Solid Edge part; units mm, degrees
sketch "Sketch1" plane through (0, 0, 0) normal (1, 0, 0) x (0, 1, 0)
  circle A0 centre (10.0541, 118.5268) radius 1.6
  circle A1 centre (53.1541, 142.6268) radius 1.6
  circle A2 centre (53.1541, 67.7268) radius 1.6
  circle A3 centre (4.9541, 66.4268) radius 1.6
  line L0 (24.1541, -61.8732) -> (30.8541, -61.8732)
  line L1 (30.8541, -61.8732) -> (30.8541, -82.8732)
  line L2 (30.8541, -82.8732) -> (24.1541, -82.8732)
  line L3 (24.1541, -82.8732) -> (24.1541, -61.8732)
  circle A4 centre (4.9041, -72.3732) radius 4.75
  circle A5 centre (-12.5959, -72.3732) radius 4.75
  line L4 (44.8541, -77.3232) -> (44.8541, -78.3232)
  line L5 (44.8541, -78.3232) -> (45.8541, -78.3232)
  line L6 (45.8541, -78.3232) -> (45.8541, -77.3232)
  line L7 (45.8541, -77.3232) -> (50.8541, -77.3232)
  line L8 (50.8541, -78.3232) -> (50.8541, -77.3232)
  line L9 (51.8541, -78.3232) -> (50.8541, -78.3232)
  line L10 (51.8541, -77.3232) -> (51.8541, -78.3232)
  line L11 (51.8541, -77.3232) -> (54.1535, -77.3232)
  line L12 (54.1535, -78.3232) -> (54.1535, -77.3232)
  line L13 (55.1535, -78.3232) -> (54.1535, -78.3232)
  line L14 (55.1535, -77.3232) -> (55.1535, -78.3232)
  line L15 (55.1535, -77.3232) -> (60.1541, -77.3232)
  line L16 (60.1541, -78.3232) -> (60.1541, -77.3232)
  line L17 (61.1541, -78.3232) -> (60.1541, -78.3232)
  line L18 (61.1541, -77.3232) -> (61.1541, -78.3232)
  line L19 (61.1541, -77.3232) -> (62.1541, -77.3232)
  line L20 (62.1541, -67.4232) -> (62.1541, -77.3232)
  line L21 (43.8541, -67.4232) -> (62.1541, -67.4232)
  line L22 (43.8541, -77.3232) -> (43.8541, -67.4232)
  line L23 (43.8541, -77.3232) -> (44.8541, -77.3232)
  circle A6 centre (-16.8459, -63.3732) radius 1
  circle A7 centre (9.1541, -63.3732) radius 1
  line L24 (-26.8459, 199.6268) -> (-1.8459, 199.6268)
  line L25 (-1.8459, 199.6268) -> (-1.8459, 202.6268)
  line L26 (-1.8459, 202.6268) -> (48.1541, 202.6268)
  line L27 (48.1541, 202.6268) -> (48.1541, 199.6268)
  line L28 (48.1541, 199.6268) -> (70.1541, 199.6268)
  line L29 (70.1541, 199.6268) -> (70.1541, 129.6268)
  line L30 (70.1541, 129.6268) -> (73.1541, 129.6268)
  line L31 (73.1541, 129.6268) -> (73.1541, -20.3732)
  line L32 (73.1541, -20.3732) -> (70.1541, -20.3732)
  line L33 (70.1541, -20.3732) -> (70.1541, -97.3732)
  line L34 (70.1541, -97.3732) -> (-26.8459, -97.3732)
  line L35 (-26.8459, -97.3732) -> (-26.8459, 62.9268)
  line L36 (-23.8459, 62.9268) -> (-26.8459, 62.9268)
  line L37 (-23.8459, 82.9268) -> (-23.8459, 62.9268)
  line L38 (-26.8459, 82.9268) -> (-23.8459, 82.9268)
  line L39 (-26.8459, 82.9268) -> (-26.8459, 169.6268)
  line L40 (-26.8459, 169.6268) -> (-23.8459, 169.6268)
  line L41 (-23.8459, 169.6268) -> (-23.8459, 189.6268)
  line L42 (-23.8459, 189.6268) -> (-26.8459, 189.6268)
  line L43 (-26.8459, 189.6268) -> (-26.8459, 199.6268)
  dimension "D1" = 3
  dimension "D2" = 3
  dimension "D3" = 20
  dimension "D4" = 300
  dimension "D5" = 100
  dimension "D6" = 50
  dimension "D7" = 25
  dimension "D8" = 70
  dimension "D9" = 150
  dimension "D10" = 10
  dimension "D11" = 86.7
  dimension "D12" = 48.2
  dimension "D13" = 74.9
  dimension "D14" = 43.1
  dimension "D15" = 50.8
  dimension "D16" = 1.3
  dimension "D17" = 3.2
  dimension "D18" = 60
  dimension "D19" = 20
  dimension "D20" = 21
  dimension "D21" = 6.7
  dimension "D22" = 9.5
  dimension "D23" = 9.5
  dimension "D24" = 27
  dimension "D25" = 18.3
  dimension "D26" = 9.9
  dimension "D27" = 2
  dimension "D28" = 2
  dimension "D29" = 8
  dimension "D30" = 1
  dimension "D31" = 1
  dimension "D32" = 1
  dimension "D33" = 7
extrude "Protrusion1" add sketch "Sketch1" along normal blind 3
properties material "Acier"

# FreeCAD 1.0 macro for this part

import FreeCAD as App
import Part
import Sketcher

V = App.Vector


def add_polygon(sketch, points):
    """Adds a closed chain of lines whose ends are joined by coincident constraints."""
    first, n = sketch.GeometryCount, len(points)
    for a, b in zip(points, points[1:] + points[:1]):
        sketch.addGeometry(Part.LineSegment(App.Vector(*a, 0), App.Vector(*b, 0)), False)
    for i in range(n):
        sketch.addConstraint(Sketcher.Constraint("Coincident", first + i, 2, first + (i + 1) % n, 1))

doc = App.newDocument("Part")
body = doc.addObject("PartDesign::Body", "Body")

# Sketch on YZ plane
sketch1 = body.newObject("Sketcher::SketchObject", "Sketch")
sketch1.AttachmentSupport = (doc.getObject("YZ_Plane"), [""])
sketch1.MapMode = "FlatFace"
add_polygon(sketch1, [(-1.8, 199.6), (-26.8, 199.6), (-26.8, 189.6), (-23.8, 189.6), (-23.8, 169.6), (-26.8, 169.6), (-26.8, 82.9), (-23.8, 82.9), (-23.8, 62.9), (-26.8, 62.9), (-26.8, -97.4), (70.2, -97.4), (70.2, -20.4), (73.2, -20.4), (73.2, 129.6), (70.2, 129.6), (70.2, 199.6), (48.2, 199.6), (48.2, 202.6), (-1.8, 202.6)])  # lines 0-19
sketch1.addGeometry(Part.Circle(V(-16.8, -63.4, 0), V(0, 0, 1), 1), False)  # 20
sketch1.addGeometry(Part.Circle(V(-12.6, -72.4, 0), V(0, 0, 1), 4.8), False)  # 21
sketch1.addGeometry(Part.Circle(V(4.9, -72.4, 0), V(0, 0, 1), 4.8), False)  # 22
sketch1.addGeometry(Part.Circle(V(9.2, -63.4, 0), V(0, 0, 1), 1), False)  # 23
add_polygon(sketch1, [(24.2, -82.9), (24.2, -61.9), (30.9, -61.9), (30.9, -82.9)])  # lines 24-27
add_polygon(sketch1, [(44.9, -78.3), (44.9, -77.3), (43.9, -77.3), (43.9, -67.4), (62.2, -67.4), (62.2, -77.3), (61.2, -77.3), (61.2, -78.3), (60.2, -78.3), (60.2, -77.3), (55.2, -77.3), (55.2, -78.3), (54.2, -78.3), (54.2, -77.3), (51.9, -77.3), (51.9, -78.3), (50.9, -78.3), (50.9, -77.3), (45.9, -77.3), (45.9, -78.3)])  # lines 28-47
sketch1.addGeometry(Part.Circle(V(5, 66.4, 0), V(0, 0, 1), 1.6), False)  # 48
sketch1.addGeometry(Part.Circle(V(10.1, 118.5, 0), V(0, 0, 1), 1.6), False)  # 49
sketch1.addGeometry(Part.Circle(V(53.2, 67.7, 0), V(0, 0, 1), 1.6), False)  # 50
sketch1.addGeometry(Part.Circle(V(53.2, 142.6, 0), V(0, 0, 1), 1.6), False)  # 51
sketch1.addConstraint([
    Sketcher.Constraint("Horizontal", 0),
    Sketcher.Constraint("Vertical", 1),
    Sketcher.Constraint("Horizontal", 2),
    Sketcher.Constraint("Vertical", 3),
    Sketcher.Constraint("Horizontal", 4),
    Sketcher.Constraint("Vertical", 5),
    Sketcher.Constraint("Horizontal", 6),
    Sketcher.Constraint("Vertical", 7),
    Sketcher.Constraint("Horizontal", 8),
    Sketcher.Constraint("Vertical", 9),
    Sketcher.Constraint("Horizontal", 10),
    Sketcher.Constraint("Vertical", 11),
    Sketcher.Constraint("Horizontal", 12),
    Sketcher.Constraint("Vertical", 13),
    Sketcher.Constraint("Horizontal", 14),
    Sketcher.Constraint("Vertical", 15),
    Sketcher.Constraint("Horizontal", 16),
    Sketcher.Constraint("Vertical", 17),
    Sketcher.Constraint("Horizontal", 18),
    Sketcher.Constraint("Vertical", 19),
    Sketcher.Constraint("Vertical", 24),
    Sketcher.Constraint("Horizontal", 25),
    Sketcher.Constraint("Vertical", 26),
    Sketcher.Constraint("Horizontal", 27),
    Sketcher.Constraint("Vertical", 28),
    Sketcher.Constraint("Horizontal", 29),
    Sketcher.Constraint("Vertical", 30),
    Sketcher.Constraint("Horizontal", 31),
    Sketcher.Constraint("Vertical", 32),
    Sketcher.Constraint("Horizontal", 33),
    Sketcher.Constraint("Vertical", 34),
    Sketcher.Constraint("Horizontal", 35),
    Sketcher.Constraint("Vertical", 36),
    Sketcher.Constraint("Horizontal", 37),
    Sketcher.Constraint("Vertical", 38),
    Sketcher.Constraint("Horizontal", 39),
    Sketcher.Constraint("Vertical", 40),
    Sketcher.Constraint("Horizontal", 41),
    Sketcher.Constraint("Vertical", 42),
    Sketcher.Constraint("Horizontal", 43),
    Sketcher.Constraint("Vertical", 44),
    Sketcher.Constraint("Horizontal", 45),
    Sketcher.Constraint("Vertical", 46),
    Sketcher.Constraint("Horizontal", 47),
    Sketcher.Constraint("Equal", 21, 22),
    Sketcher.Constraint("Equal", 20, 23),
    Sketcher.Constraint("Equal", 48, 49),
    Sketcher.Constraint("Equal", 49, 50),
    Sketcher.Constraint("Equal", 50, 51),
    Sketcher.Constraint("Horizontal", 21, 3, 22, 3),
    Sketcher.Constraint("Horizontal", 20, 3, 23, 3),
    Sketcher.Constraint("Horizontal", 0, 2, 15, 2),
    Sketcher.Constraint("Horizontal", 29, 2, 32, 2),
    Sketcher.Constraint("Horizontal", 33, 2, 36, 2),
    Sketcher.Constraint("Horizontal", 35, 2, 38, 2),
    Sketcher.Constraint("Horizontal", 37, 2, 40, 2),
    Sketcher.Constraint("Horizontal", 39, 2, 42, 2),
    Sketcher.Constraint("Horizontal", 41, 2, 44, 2),
    Sketcher.Constraint("Horizontal", 43, 2, 46, 2),
    Sketcher.Constraint("Vertical", 50, 3, 51, 3),
    Sketcher.Constraint("Vertical", 1, 2, 4, 2),
    Sketcher.Constraint("Vertical", 3, 2, 6, 2),
    Sketcher.Constraint("Vertical", 5, 2, 8, 2),
    Sketcher.Constraint("Vertical", 11, 2, 14, 2),
    Sketcher.Constraint("Equal", 8, 12),
    Sketcher.Constraint("Equal", 29, 33),
    Sketcher.Constraint("Equal", 33, 35),
    Sketcher.Constraint("Equal", 35, 39),
    Sketcher.Constraint("Equal", 39, 43),
    Sketcher.Constraint("Equal", 43, 47),
    Sketcher.Constraint("Equal", 3, 7),
    Sketcher.Constraint("Equal", 14, 17),
    Sketcher.Constraint("Equal", 47, 28),
    Sketcher.Constraint("Diameter", 20, 2.0),
    Sketcher.Constraint("Diameter", 21, 9.5),
    Sketcher.Constraint("Diameter", 48, 3.2),
    Sketcher.Constraint("DistanceX", 0, 2, 0, 1, 25.0),
    Sketcher.Constraint("DistanceX", 2, 1, 2, 2, 3.0),
    Sketcher.Constraint("DistanceX", 10, 1, 10, 2, 97.0),
    Sketcher.Constraint("DistanceX", 16, 2, 16, 1, 22.0),
    Sketcher.Constraint("DistanceX", 29, 2, 29, 1, 1.0),
    Sketcher.Constraint("DistanceX", 45, 2, 45, 1, 5.0),
    Sketcher.Constraint("DistanceY", 1, 2, 1, 1, 10.0),
    Sketcher.Constraint("DistanceY", 3, 2, 3, 1, 20.0),
    Sketcher.Constraint("DistanceY", 11, 1, 11, 2, 77.0),
    Sketcher.Constraint("DistanceY", 13, 1, 13, 2, 150.0),
    Sketcher.Constraint("DistanceY", 15, 1, 15, 2, 70.0),
    Sketcher.Constraint("DistanceY", 24, 1, 24, 2, 21.0),
    Sketcher.Constraint("DistanceX", 25, 1, 25, 2, 6.7),
    Sketcher.Constraint("DistanceX", 31, 1, 31, 2, 18.3),
    Sketcher.Constraint("DistanceY", 5, 2, 5, 1, 86.7),
    Sketcher.Constraint("DistanceY", 30, 1, 30, 2, 9.9),
    Sketcher.Constraint("DistanceX", -1, 1, 50, 3, 53.154),
    Sketcher.Constraint("DistanceX", 0, 2, -1, 1, 26.846),
    Sketcher.Constraint("DistanceX", -1, 1, 24, 2, 24.154),
    Sketcher.Constraint("DistanceX", -1, 1, 28, 2, 44.854),
    Sketcher.Constraint("DistanceY", 21, 3, 20, 3, 9.0),
    Sketcher.Constraint("DistanceX", 20, 3, 23, 3, 26.0),
    Sketcher.Constraint("DistanceX", 23, 3, 50, 3, 44.0),
    Sketcher.Constraint("DistanceY", 23, 3, 51, 3, 206.0),
    Sketcher.Constraint("DistanceY", 51, 3, 0, 2, 57.0),
    Sketcher.Constraint("DistanceX", 21, 3, 22, 3, 17.5),
    Sketcher.Constraint("DistanceX", 48, 3, 23, 3, 4.2),
    Sketcher.Constraint("DistanceY", 23, 3, 48, 3, 129.8),
    Sketcher.Constraint("DistanceX", 48, 3, 49, 3, 5.1),
    Sketcher.Constraint("DistanceY", 48, 3, 49, 3, 52.1),
    Sketcher.Constraint("DistanceY", 48, 3, 50, 3, 1.3),
    Sketcher.Constraint("DistanceY", 23, 3, 24, 2, 1.5),
    Sketcher.Constraint("DistanceX", 20, 3, 21, 3, 4.25),
    Sketcher.Constraint("DistanceY", 26, 2, 28, 2, 5.55),
    Sketcher.Constraint("DistanceX", 37, 2, 37, 1, 5.0006),
    Sketcher.Constraint("DistanceY", 20, 3, -1, 1, 63.3732),
])
pad1 = body.newObject("PartDesign::Pad", "Pad")
pad1.Profile = sketch1
pad1.Length = 3

doc.recompute()
